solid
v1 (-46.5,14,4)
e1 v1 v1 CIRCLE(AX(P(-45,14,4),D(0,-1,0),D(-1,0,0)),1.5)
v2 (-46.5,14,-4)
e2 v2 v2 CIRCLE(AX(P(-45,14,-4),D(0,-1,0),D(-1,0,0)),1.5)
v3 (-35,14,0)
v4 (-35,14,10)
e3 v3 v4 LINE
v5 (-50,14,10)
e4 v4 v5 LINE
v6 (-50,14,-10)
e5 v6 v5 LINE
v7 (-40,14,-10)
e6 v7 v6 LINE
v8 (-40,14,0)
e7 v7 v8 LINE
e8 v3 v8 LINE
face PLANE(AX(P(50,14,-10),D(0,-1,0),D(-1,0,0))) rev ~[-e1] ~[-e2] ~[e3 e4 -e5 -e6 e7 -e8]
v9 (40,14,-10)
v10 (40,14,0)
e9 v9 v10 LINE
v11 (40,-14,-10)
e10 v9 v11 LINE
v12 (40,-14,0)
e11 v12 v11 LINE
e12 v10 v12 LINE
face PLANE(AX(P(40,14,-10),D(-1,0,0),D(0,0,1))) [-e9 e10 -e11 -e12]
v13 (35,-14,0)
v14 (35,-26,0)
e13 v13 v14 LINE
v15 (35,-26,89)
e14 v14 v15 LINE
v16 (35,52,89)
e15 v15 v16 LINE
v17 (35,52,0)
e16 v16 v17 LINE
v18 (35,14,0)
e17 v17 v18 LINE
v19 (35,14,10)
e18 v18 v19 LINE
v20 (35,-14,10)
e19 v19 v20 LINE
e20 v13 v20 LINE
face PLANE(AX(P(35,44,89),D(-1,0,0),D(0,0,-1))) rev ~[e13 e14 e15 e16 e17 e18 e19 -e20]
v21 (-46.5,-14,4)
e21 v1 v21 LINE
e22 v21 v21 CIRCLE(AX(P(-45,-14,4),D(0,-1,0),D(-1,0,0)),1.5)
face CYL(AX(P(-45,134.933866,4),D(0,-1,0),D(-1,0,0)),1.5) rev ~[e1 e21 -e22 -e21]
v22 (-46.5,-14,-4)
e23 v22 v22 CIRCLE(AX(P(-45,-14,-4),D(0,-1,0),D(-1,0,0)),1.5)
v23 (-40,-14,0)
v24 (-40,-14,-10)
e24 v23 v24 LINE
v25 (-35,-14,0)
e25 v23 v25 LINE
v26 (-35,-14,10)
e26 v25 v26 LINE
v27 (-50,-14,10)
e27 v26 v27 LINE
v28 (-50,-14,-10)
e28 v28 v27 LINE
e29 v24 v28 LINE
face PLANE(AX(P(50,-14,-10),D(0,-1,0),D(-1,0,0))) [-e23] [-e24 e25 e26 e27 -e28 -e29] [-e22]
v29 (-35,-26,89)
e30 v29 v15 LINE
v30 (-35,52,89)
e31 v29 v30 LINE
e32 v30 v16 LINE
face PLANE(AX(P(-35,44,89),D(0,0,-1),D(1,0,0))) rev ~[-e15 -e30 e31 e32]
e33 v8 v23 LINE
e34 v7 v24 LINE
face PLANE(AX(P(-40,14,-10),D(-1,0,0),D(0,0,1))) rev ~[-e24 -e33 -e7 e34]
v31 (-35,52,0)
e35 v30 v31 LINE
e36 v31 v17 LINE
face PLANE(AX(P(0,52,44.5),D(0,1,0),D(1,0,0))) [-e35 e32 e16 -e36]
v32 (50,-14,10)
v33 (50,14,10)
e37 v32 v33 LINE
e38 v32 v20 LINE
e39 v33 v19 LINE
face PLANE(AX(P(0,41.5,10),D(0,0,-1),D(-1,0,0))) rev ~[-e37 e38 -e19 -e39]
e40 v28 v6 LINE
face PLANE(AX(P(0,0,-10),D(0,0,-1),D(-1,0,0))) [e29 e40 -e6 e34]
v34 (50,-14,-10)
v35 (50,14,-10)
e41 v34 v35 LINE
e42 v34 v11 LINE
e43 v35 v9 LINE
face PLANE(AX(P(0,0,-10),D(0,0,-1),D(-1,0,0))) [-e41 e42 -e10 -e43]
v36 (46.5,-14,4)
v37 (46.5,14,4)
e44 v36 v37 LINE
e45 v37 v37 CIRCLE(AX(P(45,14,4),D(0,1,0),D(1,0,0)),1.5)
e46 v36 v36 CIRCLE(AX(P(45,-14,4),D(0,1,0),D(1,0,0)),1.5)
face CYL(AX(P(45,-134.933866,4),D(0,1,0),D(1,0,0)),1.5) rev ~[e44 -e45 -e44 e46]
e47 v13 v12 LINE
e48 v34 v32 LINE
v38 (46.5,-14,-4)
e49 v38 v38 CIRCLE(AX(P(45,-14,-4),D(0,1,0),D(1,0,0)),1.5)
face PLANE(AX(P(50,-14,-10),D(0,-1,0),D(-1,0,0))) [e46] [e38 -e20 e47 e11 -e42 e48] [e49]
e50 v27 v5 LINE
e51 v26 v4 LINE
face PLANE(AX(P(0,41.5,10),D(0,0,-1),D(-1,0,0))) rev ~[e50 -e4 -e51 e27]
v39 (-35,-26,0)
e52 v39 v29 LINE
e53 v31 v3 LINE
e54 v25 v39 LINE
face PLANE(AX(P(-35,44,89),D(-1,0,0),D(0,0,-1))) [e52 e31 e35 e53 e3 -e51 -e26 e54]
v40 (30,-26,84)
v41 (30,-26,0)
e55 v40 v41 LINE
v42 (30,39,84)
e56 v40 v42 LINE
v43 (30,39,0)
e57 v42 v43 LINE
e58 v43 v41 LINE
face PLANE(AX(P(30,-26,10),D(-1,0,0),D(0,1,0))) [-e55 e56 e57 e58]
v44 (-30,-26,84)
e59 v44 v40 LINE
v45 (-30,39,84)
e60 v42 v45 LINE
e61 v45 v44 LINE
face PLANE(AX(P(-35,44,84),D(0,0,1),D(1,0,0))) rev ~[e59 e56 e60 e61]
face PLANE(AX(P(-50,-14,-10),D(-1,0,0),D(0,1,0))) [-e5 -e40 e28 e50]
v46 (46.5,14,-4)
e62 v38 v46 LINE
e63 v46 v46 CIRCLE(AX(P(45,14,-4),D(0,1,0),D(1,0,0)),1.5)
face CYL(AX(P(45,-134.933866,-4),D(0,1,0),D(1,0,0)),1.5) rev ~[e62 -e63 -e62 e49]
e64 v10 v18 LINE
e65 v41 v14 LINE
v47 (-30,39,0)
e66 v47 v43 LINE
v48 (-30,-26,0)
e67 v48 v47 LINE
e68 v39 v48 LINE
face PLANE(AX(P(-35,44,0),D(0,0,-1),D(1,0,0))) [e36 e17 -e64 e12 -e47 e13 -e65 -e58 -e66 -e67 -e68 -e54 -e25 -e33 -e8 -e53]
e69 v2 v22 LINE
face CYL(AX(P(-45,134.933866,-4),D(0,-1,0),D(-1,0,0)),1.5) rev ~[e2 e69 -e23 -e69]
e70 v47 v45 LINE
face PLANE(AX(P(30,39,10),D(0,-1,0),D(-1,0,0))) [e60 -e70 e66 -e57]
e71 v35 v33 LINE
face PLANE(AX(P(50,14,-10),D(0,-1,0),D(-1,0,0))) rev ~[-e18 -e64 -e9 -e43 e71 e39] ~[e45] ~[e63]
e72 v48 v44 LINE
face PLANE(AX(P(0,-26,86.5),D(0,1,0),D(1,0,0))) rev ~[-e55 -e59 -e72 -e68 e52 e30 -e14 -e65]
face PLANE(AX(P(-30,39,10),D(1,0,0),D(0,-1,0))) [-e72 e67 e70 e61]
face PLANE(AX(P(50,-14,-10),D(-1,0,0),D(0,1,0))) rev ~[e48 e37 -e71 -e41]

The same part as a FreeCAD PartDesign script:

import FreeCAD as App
import Part
import Sketcher

V = App.Vector
Q = App.Units.Quantity

doc = App.newDocument("Part")
body = doc.addObject("PartDesign::Body", "Body")

# Sketch on XY plane
sketch1 = doc.addObject("Sketcher::SketchObject", "Sketch")
body.addObject(sketch1)
sketch1.AttachmentSupport = (doc.XY_Plane, [""])
sketch1.MapMode = "FlatFace"
sketch1.AttachmentOffset = App.Placement(V(0, 0, -10), App.Rotation())
sketch1.addGeometry([
    Part.LineSegment(V(50, 14, 0), V(50, -14, 0)),
    Part.LineSegment(V(50, -14, 0), V(-50, -14, 0)),
    Part.LineSegment(V(-50, -14, 0), V(-50, 14, 0)),
    Part.LineSegment(V(-50, 14, 0), V(50, 14, 0)),
], False)
sketch1.addConstraint([
    Sketcher.Constraint("Coincident", 0, 2, 1, 1),
    Sketcher.Constraint("Coincident", 1, 2, 2, 1),
    Sketcher.Constraint("Coincident", 2, 2, 3, 1),
    Sketcher.Constraint("Coincident", 3, 2, 0, 1),
    Sketcher.Constraint("Vertical", 0),
    Sketcher.Constraint("Horizontal", 1),
    Sketcher.Constraint("Vertical", 2),
    Sketcher.Constraint("Horizontal", 3),
    Sketcher.Constraint("Symmetric", 0, 2, 2, 2, -1, 1),
    Sketcher.Constraint("DistanceX", 1, 2, 1, 1, Q("100 mm")),
    Sketcher.Constraint("DistanceY", 0, 2, 0, 1, Q("28 mm")),
])
pad1 = doc.addObject("PartDesign::Pad", "Pad")
body.addObject(pad1)
pad1.Profile = sketch1
pad1.Length = 20

# Sketch on XZ plane
sketch2 = doc.addObject("Sketcher::SketchObject", "Sketch001")
body.addObject(sketch2)
sketch2.AttachmentSupport = (doc.XZ_Plane, [""])
sketch2.MapMode = "FlatFace"
sketch2.AttachmentOffset = App.Placement(V(0, 0, -14), App.Rotation())
sketch2.addGeometry([
    Part.LineSegment(V(40, 0, 0), V(40, -10, 0)),
    Part.LineSegment(V(40, -10, 0), V(-40, -10, 0)),
    Part.LineSegment(V(-40, -10, 0), V(-40, 0, 0)),
    Part.LineSegment(V(-40, 0, 0), V(40, 0, 0)),
], False)
sketch2.addConstraint([
    Sketcher.Constraint("Coincident", 0, 2, 1, 1),
    Sketcher.Constraint("Coincident", 1, 2, 2, 1),
    Sketcher.Constraint("Coincident", 2, 2, 3, 1),
    Sketcher.Constraint("Coincident", 3, 2, 0, 1),
    Sketcher.Constraint("Vertical", 0),
    Sketcher.Constraint("Horizontal", 1),
    Sketcher.Constraint("Vertical", 2),
    Sketcher.Constraint("Horizontal", 3),
    Sketcher.Constraint("Symmetric", 2, 2, 3, 2, -1, 1),
    Sketcher.Constraint("DistanceX", 1, 2, 1, 1, Q("80 mm")),
    Sketcher.Constraint("DistanceY", 0, 2, 0, 1, Q("10 mm")),
])
pocket1 = doc.addObject("PartDesign::Pocket", "Pocket")
body.addObject(pocket1)
pocket1.Profile = sketch2
pocket1.Type = "ThroughAll"
pocket1.Reversed = True

# Sketch on XZ plane
sketch3 = doc.addObject("Sketcher::SketchObject", "Sketch002")
body.addObject(sketch3)
sketch3.AttachmentSupport = (doc.XZ_Plane, [""])
sketch3.MapMode = "FlatFace"
sketch3.AttachmentOffset = App.Placement(V(0, 0, -14), App.Rotation())
sketch3.addGeometry([
    Part.LineSegment(V(35, 10, 0), V(35, 0, 0)),
    Part.LineSegment(V(35, 0, 0), V(-35, 0, 0)),
    Part.LineSegment(V(-35, 0, 0), V(-35, 10, 0)),
    Part.LineSegment(V(-35, 10, 0), V(35, 10, 0)),
], False)
sketch3.addConstraint([
    Sketcher.Constraint("Coincident", 0, 2, 1, 1),
    Sketcher.Constraint("Coincident", 1, 2, 2, 1),
    Sketcher.Constraint("Coincident", 2, 2, 3, 1),
    Sketcher.Constraint("Coincident", 3, 2, 0, 1),
    Sketcher.Constraint("Vertical", 0),
    Sketcher.Constraint("Horizontal", 1),
    Sketcher.Constraint("Vertical", 2),
    Sketcher.Constraint("Horizontal", 3),
    Sketcher.Constraint("Symmetric", 0, 2, 1, 2, -1, 1),
    Sketcher.Constraint("DistanceX", 1, 2, 1, 1, Q("70 mm")),
    Sketcher.Constraint("DistanceY", 0, 2, 0, 1, Q("10 mm")),
])
pad2 = doc.addObject("PartDesign::Pad", "Pad001")
body.addObject(pad2)
pad2.Profile = sketch3
pad2.Length = 25
pad2.Reversed = True

# Sketch on XZ plane
sketch4 = doc.addObject("Sketcher::SketchObject", "Sketch003")
body.addObject(sketch4)
sketch4.AttachmentSupport = (doc.XZ_Plane, [""])
sketch4.MapMode = "FlatFace"
sketch4.AttachmentOffset = App.Placement(V(0, 0, 14), App.Rotation())
sketch4.addGeometry([
    Part.LineSegment(V(-35, 10, 0), V(-35, 0, 0)),
    Part.LineSegment(V(-35, 0, 0), V(35, 0, 0)),
    Part.LineSegment(V(35, 0, 0), V(35, 10, 0)),
    Part.LineSegment(V(35, 10, 0), V(-35, 10, 0)),
], False)
sketch4.addConstraint([
    Sketcher.Constraint("Coincident", 0, 2, 1, 1),
    Sketcher.Constraint("Coincident", 1, 2, 2, 1),
    Sketcher.Constraint("Coincident", 2, 2, 3, 1),
    Sketcher.Constraint("Coincident", 3, 2, 0, 1),
    Sketcher.Constraint("Vertical", 0),
    Sketcher.Constraint("Horizontal", 1),
    Sketcher.Constraint("Vertical", 2),
    Sketcher.Constraint("Horizontal", 3),
    Sketcher.Constraint("Symmetric", 0, 2, 1, 2, -1, 1),
    Sketcher.Constraint("DistanceX", 1, 1, 1, 2, Q("70 mm")),
    Sketcher.Constraint("DistanceY", 0, 2, 0, 1, Q("10 mm")),
])
pad3 = doc.addObject("PartDesign::Pad", "Pad002")
body.addObject(pad3)
pad3.Profile = sketch4
pad3.Length = 12

# Sketch on XZ plane
sketch5 = doc.addObject("Sketcher::SketchObject", "Sketch004")
body.addObject(sketch5)
sketch5.AttachmentSupport = (doc.XZ_Plane, [""])
sketch5.MapMode = "FlatFace"
sketch5.AttachmentOffset = App.Placement(V(0, 0, -14), App.Rotation())
sketch5.addGeometry([
    Part.Circle(V(-45, 4, 0), V(0, 0, 1), 1.5),
    Part.Circle(V(-45, -4, 0), V(0, 0, 1), 1.5),
], False)
sketch5.addConstraint([
    Sketcher.Constraint("Equal", 0, 1),
    Sketcher.Constraint("Symmetric", 0, 3, 1, 3, -1),
    Sketcher.Constraint("Diameter", 0, Q("3 mm")),
    Sketcher.Constraint("DistanceX", 0, 3, -1, 1, Q("45 mm")),
    Sketcher.Constraint("DistanceY", -1, 1, 0, 3, Q("4 mm")),
])
doc.recompute()
hole = doc.addObject("PartDesign::Hole", "Hole")
body.addObject(hole)
hole.Profile = sketch5
hole.ThreadType = "None"
hole.Diameter = 3
hole.DepthType = "ThroughAll"
hole.Reversed = True

# Sketch on XZ plane
sketch6 = doc.addObject("Sketcher::SketchObject", "Sketch005")
body.addObject(sketch6)
sketch6.AttachmentSupport = (doc.XZ_Plane, [""])
sketch6.MapMode = "FlatFace"
sketch6.AttachmentOffset = App.Placement(V(0, 0, 14), App.Rotation())
sketch6.addGeometry([
    Part.Circle(V(45, -4, 0), V(0, 0, 1), 1.5),
    Part.Circle(V(45, 4, 0), V(0, 0, 1), 1.5),
], False)
sketch6.addConstraint([
    Sketcher.Constraint("Equal", 0, 1),
    Sketcher.Constraint("Symmetric", 0, 3, 1, 3, -1),
    Sketcher.Constraint("Diameter", 0, Q("3 mm")),
    Sketcher.Constraint("DistanceX", -1, 1, 0, 3, Q("45 mm")),
    Sketcher.Constraint("DistanceY", 0, 3, -1, 1, Q("4 mm")),
])
doc.recompute()
hole2 = doc.addObject("PartDesign::Hole", "Hole001")
body.addObject(hole2)
hole2.Profile = sketch6
hole2.ThreadType = "None"
hole2.Diameter = 3
hole2.DepthType = "ThroughAll"

# Sketch on XY plane
sketch7 = doc.addObject("Sketcher::SketchObject", "Sketch006")
body.addObject(sketch7)
sketch7.AttachmentSupport = (doc.XY_Plane, [""])
sketch7.MapMode = "FlatFace"
sketch7.addGeometry([
    Part.LineSegment(V(35, 44, 0), V(35, 39, 0)),
    Part.LineSegment(V(35, 39, 0), V(-35, 39, 0)),
    Part.LineSegment(V(-35, 39, 0), V(-35, 44, 0)),
    Part.LineSegment(V(-35, 44, 0), V(35, 44, 0)),
], False)
sketch7.addConstraint([
    Sketcher.Constraint("Coincident", 0, 2, 1, 1),
    Sketcher.Constraint("Coincident", 1, 2, 2, 1),
    Sketcher.Constraint("Coincident", 2, 2, 3, 1),
    Sketcher.Constraint("Coincident", 3, 2, 0, 1),
    Sketcher.Constraint("Vertical", 0),
    Sketcher.Constraint("Horizontal", 1),
    Sketcher.Constraint("Vertical", 2),
    Sketcher.Constraint("Horizontal", 3),
    Sketcher.Constraint("DistanceX", 1, 2, 1, 1, Q("70 mm")),
    Sketcher.Constraint("DistanceY", 0, 2, 0, 1, Q("5 mm")),
    Sketcher.Constraint("DistanceX", -1, 1, 0, 2, Q("35 mm")),
    Sketcher.Constraint("DistanceY", -1, 1, 0, 2, Q("39 mm")),
])
pad4 = doc.addObject("PartDesign::Pad", "Pad003")
body.addObject(pad4)
pad4.Profile = sketch7
pad4.Length = 10

# Sketch on XY plane
sketch8 = doc.addObject("Sketcher::SketchObject", "Sketch007")
body.addObject(sketch8)
sketch8.AttachmentSupport = (doc.XY_Plane, [""])
sketch8.MapMode = "FlatFace"
sketch8.addGeometry([
    Part.LineSegment(V(-30, -26, 0), V(-30, 39, 0)),
    Part.LineSegment(V(-30, 39, 0), V(30, 39, 0)),
    Part.LineSegment(V(30, 39, 0), V(30, -26, 0)),
    Part.LineSegment(V(30, -26, 0), V(-30, -26, 0)),
], False)
sketch8.addConstraint([
    Sketcher.Constraint("Coincident", 0, 2, 1, 1),
    Sketcher.Constraint("Coincident", 1, 2, 2, 1),
    Sketcher.Constraint("Coincident", 2, 2, 3, 1),
    Sketcher.Constraint("Coincident", 3, 2, 0, 1),
    Sketcher.Constraint("Vertical", 0),
    Sketcher.Constraint("Horizontal", 1),
    Sketcher.Constraint("Vertical", 2),
    Sketcher.Constraint("Horizontal", 3),
    Sketcher.Constraint("DistanceX", 1, 1, 1, 2, Q("60 mm")),
    Sketcher.Constraint("DistanceY", 0, 1, 0, 2, Q("65 mm")),
    Sketcher.Constraint("DistanceX", 0, 2, -1, 1, Q("30 mm")),
    Sketcher.Constraint("DistanceY", -1, 1, 0, 2, Q("39 mm")),
])
pocket2 = doc.addObject("PartDesign::Pocket", "Pocket001")
body.addObject(pocket2)
pocket2.Profile = sketch8
pocket2.Length = 10
pocket2.Reversed = True

# Sketch on XY plane
sketch9 = doc.addObject("Sketcher::SketchObject", "Sketch008")
body.addObject(sketch9)
sketch9.AttachmentSupport = (doc.XY_Plane, [""])
sketch9.MapMode = "FlatFace"
sketch9.AttachmentOffset = App.Placement(V(0, 0, 10), App.Rotation())
sketch9.addGeometry([
    Part.LineSegment(V(-35, 44, 0), V(-35, -26, 0)),  # 0
    Part.LineSegment(V(-35, -26, 0), V(-30, -26, 0)),  # 1
    Part.LineSegment(V(-30, -26, 0), V(-30, 39, 0)),  # 2
    Part.LineSegment(V(-30, 39, 0), V(30, 39, 0)),  # 3
    Part.LineSegment(V(30, 39, 0), V(30, -26, 0)),  # 4
    Part.LineSegment(V(30, -26, 0), V(35, -26, 0)),  # 5
    Part.LineSegment(V(35, -26, 0), V(35, 44, 0)),  # 6
    Part.LineSegment(V(35, 44, 0), V(-35, 44, 0)),  # 7
], False)
sketch9.addConstraint([
    Sketcher.Constraint("Coincident", 0, 2, 1, 1),
    Sketcher.Constraint("Coincident", 1, 2, 2, 1),
    Sketcher.Constraint("Coincident", 2, 2, 3, 1),
    Sketcher.Constraint("Coincident", 3, 2, 4, 1),
    Sketcher.Constraint("Coincident", 4, 2, 5, 1),
    Sketcher.Constraint("Coincident", 5, 2, 6, 1),
    Sketcher.Constraint("Coincident", 6, 2, 7, 1),
    Sketcher.Constraint("Coincident", 7, 2, 0, 1),
    Sketcher.Constraint("Vertical", 0),
    Sketcher.Constraint("Horizontal", 1),
    Sketcher.Constraint("Vertical", 2),
    Sketcher.Constraint("Horizontal", 3),
    Sketcher.Constraint("Vertical", 4),
    Sketcher.Constraint("Horizontal", 5),
    Sketcher.Constraint("Vertical", 6),
    Sketcher.Constraint("Horizontal", 7),
    Sketcher.Constraint("Symmetric", 1, 2, 4, 2, -2),
    Sketcher.Constraint("Equal", 1, 5),
    Sketcher.Constraint("Equal", 7, 0),
    Sketcher.Constraint("DistanceX", 1, 1, 1, 2, Q("5 mm")),
    Sketcher.Constraint("DistanceX", 3, 1, 3, 2, Q("60 mm")),
    Sketcher.Constraint("DistanceY", 2, 1, 2, 2, Q("65 mm")),
    Sketcher.Constraint("DistanceY", 0, 2, -1, 1, Q("26 mm")),
])
pad5 = doc.addObject("PartDesign::Pad", "Pad004")
body.addObject(pad5)
pad5.Profile = sketch9
pad5.Length = 74

# Sketch on XZ plane
sketch10 = doc.addObject("Sketcher::SketchObject", "Sketch009")
body.addObject(sketch10)
sketch10.AttachmentSupport = (doc.XZ_Plane, [""])
sketch10.MapMode = "FlatFace"
sketch10.AttachmentOffset = App.Placement(V(0, 0, -44), App.Rotation())
sketch10.addGeometry([
    Part.LineSegment(V(-35, 84, 0), V(-35, 89, 0)),
    Part.LineSegment(V(-35, 89, 0), V(35, 89, 0)),
    Part.LineSegment(V(35, 89, 0), V(35, 84, 0)),
    Part.LineSegment(V(35, 84, 0), V(-35, 84, 0)),
], False)
sketch10.addConstraint([
    Sketcher.Constraint("Coincident", 0, 2, 1, 1),
    Sketcher.Constraint("Coincident", 1, 2, 2, 1),
    Sketcher.Constraint("Coincident", 2, 2, 3, 1),
    Sketcher.Constraint("Coincident", 3, 2, 0, 1),
    Sketcher.Constraint("Vertical", 0),
    Sketcher.Constraint("Horizontal", 1),
    Sketcher.Constraint("Vertical", 2),
    Sketcher.Constraint("Horizontal", 3),
    Sketcher.Constraint("DistanceX", 1, 1, 1, 2, Q("70 mm")),
    Sketcher.Constraint("DistanceY", 0, 1, 0, 2, Q("5 mm")),
    Sketcher.Constraint("DistanceX", 0, 2, -1, 1, Q("35 mm")),
    Sketcher.Constraint("DistanceY", -1, 1, 0, 2, Q("89 mm")),
])
pad6 = doc.addObject("PartDesign::Pad", "Pad005")
body.addObject(pad6)
pad6.Profile = sketch10
pad6.Length = 70

# Sketch on XZ plane
sketch11 = doc.addObject("Sketcher::SketchObject", "Sketch010")
body.addObject(sketch11)
sketch11.AttachmentSupport = (doc.XZ_Plane, [""])
sketch11.MapMode = "FlatFace"
sketch11.AttachmentOffset = App.Placement(V(0, 0, -44), App.Rotation())
sketch11.addGeometry([
    Part.LineSegment(V(-35, 0, 0), V(-35, 89, 0)),
    Part.LineSegment(V(-35, 89, 0), V(35, 89, 0)),
    Part.LineSegment(V(35, 89, 0), V(35, 0, 0)),
    Part.LineSegment(V(35, 0, 0), V(-35, 0, 0)),
], False)
sketch11.addConstraint([
    Sketcher.Constraint("Coincident", 0, 2, 1, 1),
    Sketcher.Constraint("Coincident", 1, 2, 2, 1),
    Sketcher.Constraint("Coincident", 2, 2, 3, 1),
    Sketcher.Constraint("Coincident", 3, 2, 0, 1),
    Sketcher.Constraint("Vertical", 0),
    Sketcher.Constraint("Horizontal", 1),
    Sketcher.Constraint("Vertical", 2),
    Sketcher.Constraint("Horizontal", 3),
    Sketcher.Constraint("Symmetric", 2, 2, 3, 2, -1, 1),
    Sketcher.Constraint("DistanceX", 1, 1, 1, 2, Q("70 mm")),
    Sketcher.Constraint("DistanceY", 0, 1, 0, 2, Q("89 mm")),
])
pad7 = doc.addObject("PartDesign::Pad", "Pad006")
body.addObject(pad7)
pad7.Profile = sketch11
pad7.Length = 8
pad7.Reversed = True

doc.recompute()
